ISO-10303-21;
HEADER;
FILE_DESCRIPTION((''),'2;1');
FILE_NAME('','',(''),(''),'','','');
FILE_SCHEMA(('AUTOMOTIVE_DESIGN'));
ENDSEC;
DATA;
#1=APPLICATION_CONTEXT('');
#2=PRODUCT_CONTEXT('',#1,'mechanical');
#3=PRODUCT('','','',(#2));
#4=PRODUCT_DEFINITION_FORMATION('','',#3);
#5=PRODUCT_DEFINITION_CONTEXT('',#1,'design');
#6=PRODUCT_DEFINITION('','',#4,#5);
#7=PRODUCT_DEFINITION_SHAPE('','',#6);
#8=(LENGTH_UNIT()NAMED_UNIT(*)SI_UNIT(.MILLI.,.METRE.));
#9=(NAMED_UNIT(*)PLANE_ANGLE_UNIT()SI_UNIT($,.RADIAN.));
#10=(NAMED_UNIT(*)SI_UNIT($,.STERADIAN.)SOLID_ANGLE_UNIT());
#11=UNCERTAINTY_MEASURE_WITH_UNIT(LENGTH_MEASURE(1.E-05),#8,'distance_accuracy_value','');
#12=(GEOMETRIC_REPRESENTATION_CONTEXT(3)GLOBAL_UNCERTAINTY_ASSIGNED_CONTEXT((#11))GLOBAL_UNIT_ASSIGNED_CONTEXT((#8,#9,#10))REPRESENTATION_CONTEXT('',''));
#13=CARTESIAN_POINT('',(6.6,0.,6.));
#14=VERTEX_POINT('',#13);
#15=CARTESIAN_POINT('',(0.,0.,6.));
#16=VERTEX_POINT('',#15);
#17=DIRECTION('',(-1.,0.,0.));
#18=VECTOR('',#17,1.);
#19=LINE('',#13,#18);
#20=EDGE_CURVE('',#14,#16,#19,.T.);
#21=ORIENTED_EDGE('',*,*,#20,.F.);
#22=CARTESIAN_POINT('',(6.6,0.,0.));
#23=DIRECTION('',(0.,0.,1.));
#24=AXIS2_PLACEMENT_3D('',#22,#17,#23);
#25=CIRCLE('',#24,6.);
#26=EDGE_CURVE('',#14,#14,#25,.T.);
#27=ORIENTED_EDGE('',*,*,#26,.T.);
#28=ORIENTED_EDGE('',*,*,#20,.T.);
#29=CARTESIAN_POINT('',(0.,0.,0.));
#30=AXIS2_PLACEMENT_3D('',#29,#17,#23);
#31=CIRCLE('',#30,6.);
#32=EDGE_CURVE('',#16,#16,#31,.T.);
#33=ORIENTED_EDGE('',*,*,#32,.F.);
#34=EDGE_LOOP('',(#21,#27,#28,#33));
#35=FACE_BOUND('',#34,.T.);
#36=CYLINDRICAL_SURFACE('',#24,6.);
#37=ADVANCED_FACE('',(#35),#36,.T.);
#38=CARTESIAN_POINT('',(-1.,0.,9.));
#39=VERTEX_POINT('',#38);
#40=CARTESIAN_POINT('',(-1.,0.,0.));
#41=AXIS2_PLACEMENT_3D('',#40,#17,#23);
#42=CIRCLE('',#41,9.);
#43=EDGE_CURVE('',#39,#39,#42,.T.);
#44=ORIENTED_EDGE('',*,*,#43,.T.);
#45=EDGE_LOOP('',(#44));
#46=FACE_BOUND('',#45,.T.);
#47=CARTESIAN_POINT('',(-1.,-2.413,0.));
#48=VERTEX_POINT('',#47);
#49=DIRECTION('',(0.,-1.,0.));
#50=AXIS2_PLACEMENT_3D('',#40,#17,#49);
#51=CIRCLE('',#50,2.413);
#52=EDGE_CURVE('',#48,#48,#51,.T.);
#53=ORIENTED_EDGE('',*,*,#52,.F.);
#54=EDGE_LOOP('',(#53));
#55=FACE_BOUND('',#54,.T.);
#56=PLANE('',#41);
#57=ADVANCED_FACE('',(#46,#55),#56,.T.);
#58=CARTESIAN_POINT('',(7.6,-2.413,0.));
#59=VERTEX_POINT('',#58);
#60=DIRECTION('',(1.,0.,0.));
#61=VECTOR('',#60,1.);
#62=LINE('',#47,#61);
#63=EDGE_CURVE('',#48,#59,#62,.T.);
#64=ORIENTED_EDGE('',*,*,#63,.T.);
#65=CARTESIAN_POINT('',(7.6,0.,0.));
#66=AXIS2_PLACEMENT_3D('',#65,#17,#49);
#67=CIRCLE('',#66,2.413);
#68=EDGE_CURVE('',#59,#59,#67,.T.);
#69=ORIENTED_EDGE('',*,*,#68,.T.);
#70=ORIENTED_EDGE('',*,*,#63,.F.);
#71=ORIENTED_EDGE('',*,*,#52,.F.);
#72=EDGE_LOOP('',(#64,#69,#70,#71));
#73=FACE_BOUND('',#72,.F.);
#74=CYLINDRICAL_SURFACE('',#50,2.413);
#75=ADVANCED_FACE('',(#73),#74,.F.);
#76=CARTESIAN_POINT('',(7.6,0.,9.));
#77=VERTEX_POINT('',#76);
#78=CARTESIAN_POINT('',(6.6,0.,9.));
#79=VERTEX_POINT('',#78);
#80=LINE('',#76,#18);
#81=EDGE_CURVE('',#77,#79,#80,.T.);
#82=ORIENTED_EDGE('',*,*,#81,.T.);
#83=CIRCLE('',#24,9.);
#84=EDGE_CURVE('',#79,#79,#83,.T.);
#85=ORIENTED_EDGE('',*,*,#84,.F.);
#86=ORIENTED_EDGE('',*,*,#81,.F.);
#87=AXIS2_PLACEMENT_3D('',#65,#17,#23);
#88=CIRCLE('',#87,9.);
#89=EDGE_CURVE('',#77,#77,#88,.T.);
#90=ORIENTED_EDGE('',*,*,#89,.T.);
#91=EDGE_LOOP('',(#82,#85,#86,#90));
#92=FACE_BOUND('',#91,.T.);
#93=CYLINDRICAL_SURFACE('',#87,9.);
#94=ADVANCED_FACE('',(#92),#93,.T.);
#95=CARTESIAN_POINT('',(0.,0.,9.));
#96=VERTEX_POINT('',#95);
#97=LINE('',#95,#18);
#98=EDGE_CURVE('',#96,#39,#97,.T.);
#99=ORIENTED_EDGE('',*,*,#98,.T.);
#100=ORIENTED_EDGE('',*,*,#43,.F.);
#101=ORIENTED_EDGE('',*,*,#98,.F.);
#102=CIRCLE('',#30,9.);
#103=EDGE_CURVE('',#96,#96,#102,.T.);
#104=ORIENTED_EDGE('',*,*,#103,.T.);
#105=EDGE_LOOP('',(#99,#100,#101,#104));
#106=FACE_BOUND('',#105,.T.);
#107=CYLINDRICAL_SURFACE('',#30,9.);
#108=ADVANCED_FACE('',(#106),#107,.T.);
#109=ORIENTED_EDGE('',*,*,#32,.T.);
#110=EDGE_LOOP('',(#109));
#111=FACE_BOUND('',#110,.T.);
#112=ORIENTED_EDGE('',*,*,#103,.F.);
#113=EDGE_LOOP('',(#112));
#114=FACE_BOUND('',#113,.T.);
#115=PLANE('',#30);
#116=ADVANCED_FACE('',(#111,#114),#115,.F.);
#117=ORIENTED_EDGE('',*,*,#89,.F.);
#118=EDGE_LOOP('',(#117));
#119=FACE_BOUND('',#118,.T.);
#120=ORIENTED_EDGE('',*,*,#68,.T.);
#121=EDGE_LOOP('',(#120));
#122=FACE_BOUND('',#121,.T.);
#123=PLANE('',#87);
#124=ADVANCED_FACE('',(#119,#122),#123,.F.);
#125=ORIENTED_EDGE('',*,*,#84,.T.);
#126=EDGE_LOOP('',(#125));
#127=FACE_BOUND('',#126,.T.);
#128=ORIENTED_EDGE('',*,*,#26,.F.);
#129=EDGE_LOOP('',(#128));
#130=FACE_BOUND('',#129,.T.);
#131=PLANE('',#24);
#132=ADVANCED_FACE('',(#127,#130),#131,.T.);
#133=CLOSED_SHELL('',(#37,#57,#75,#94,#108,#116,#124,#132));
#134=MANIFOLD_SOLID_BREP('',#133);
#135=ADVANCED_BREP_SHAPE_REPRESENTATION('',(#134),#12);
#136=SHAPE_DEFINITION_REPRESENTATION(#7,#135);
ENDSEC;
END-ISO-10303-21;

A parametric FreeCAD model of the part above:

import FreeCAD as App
import Part
import Sketcher
from FreeCAD import Vector
Q = App.Units.Quantity

doc = App.newDocument("Part")
body = doc.addObject("PartDesign::Body", "Body")

# Sketch on XZ plane
sketch1 = doc.addObject("Sketcher::SketchObject", "Sketch")
body.addObject(sketch1)
sketch1.AttachmentSupport = (doc.XZ_Plane, [""])
sketch1.MapMode = "FlatFace"
sketch1.addGeometry([
    Part.LineSegment(Vector(6.6, 9, 0), Vector(6.6, 6, 0)),  # 0
    Part.LineSegment(Vector(6.6, 6, 0), Vector(0, 6, 0)),  # 1
    Part.LineSegment(Vector(0, 6, 0), Vector(0, 9, 0)),  # 2
    Part.LineSegment(Vector(0, 9, 0), Vector(-1, 9, 0)),  # 3
    Part.LineSegment(Vector(-1, 9, 0), Vector(-1, 0, 0)),  # 4
    Part.LineSegment(Vector(-1, 0, 0), Vector(7.6, 0, 0)),  # 5
    Part.LineSegment(Vector(7.6, 0, 0), Vector(7.6, 9, 0)),  # 6
    Part.LineSegment(Vector(7.6, 9, 0), Vector(6.6, 9, 0)),  # 7
], False)
sketch1.addConstraint([
    Sketcher.Constraint("Coincident", 0, 2, 1, 1),
    Sketcher.Constraint("Coincident", 1, 2, 2, 1),
    Sketcher.Constraint("Coincident", 2, 2, 3, 1),
    Sketcher.Constraint("Coincident", 3, 2, 4, 1),
    Sketcher.Constraint("Coincident", 4, 2, 5, 1),
    Sketcher.Constraint("Coincident", 5, 2, 6, 1),
    Sketcher.Constraint("Coincident", 6, 2, 7, 1),
    Sketcher.Constraint("Coincident", 7, 2, 0, 1),
    Sketcher.Constraint("Vertical", 0),
    Sketcher.Constraint("Horizontal", 1),
    Sketcher.Constraint("Vertical", 2),
    Sketcher.Constraint("Horizontal", 3),
    Sketcher.Constraint("Vertical", 4),
    Sketcher.Constraint("Horizontal", 5),
    Sketcher.Constraint("Vertical", 6),
    Sketcher.Constraint("Horizontal", 7),
    Sketcher.Constraint("PointOnObject", 1, 2, -2),
    Sketcher.Constraint("PointOnObject", 4, 2, -1),
    Sketcher.Constraint("Horizontal", 3, 2, 6, 2),
    Sketcher.Constraint("Equal", 3, 7),
    Sketcher.Constraint("DistanceX", 3, 2, 3, 1, Q("1 mm")),
    Sketcher.Constraint("DistanceY", 0, 2, 0, 1, Q("3 mm")),
    Sketcher.Constraint("DistanceY", 4, 2, 4, 1, Q("9 mm")),
    Sketcher.Constraint("DistanceX", 1, 2, 1, 1, Q("6.6 mm")),
])
revolution = doc.addObject("PartDesign::Revolution", "Revolution")
body.addObject(revolution)
revolution.Profile = sketch1
revolution.ReferenceAxis = (sketch1, ["H_Axis"])
revolution.Angle = 360

# Sketch on YZ plane
sketch2 = doc.addObject("Sketcher::SketchObject", "Sketch001")
body.addObject(sketch2)
sketch2.AttachmentSupport = (doc.YZ_Plane, [""])
sketch2.MapMode = "FlatFace"
sketch2.AttachmentOffset = App.Placement(Vector(0, 0, -1), App.Rotation())
sketch2.addGeometry(Part.Circle(Vector(0, 0, 0), Vector(0, 0, 1), 2.413), False)
sketch2.addConstraint([
    Sketcher.Constraint("Coincident", 0, 3, -1, 1),
    Sketcher.Constraint("Diameter", 0, Q("4.826 mm")),
])
pocket1 = doc.addObject("PartDesign::Pocket", "Pocket")
body.addObject(pocket1)
pocket1.Profile = sketch2
pocket1.Length = 25.4
pocket1.Reversed = True

doc.recompute()
